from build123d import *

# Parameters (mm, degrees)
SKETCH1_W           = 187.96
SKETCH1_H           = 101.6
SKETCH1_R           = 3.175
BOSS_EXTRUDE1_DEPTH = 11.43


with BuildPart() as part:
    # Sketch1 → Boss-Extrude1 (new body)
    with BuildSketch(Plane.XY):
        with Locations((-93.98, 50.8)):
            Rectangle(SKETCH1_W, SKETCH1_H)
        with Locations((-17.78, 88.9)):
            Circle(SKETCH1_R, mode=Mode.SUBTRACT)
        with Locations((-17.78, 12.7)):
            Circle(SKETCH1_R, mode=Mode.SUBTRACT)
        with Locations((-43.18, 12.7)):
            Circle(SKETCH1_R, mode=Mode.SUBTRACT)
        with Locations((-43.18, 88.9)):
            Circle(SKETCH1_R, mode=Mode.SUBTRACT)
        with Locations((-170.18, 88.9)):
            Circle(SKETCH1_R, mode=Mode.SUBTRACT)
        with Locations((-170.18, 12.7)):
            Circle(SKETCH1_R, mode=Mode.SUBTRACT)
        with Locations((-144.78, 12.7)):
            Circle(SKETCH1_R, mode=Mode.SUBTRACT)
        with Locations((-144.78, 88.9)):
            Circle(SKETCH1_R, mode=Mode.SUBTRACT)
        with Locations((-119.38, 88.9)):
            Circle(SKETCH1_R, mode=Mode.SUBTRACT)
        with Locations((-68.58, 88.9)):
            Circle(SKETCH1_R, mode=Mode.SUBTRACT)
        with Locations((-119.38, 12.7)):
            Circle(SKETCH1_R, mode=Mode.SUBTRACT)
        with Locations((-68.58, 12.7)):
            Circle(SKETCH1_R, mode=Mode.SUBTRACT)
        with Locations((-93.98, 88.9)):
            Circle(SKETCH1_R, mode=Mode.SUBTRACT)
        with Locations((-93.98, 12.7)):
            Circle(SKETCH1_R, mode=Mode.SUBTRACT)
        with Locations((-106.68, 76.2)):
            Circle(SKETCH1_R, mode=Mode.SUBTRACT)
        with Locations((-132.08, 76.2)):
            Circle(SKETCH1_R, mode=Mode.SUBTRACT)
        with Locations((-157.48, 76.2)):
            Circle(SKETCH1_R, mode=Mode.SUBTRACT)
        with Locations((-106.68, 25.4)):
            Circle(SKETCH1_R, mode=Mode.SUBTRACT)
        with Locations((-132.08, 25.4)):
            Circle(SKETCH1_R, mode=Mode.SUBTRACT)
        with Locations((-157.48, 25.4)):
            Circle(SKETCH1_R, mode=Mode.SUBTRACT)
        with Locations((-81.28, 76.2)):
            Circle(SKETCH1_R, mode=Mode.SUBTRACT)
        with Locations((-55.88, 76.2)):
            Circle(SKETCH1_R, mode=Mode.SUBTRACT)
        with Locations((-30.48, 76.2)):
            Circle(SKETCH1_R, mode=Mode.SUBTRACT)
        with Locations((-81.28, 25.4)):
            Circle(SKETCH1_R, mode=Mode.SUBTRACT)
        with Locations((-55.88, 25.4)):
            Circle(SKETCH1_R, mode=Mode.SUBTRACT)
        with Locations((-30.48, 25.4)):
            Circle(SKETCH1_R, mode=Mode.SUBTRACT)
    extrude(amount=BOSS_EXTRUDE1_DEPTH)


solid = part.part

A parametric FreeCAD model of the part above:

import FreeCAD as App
import Part
import Sketcher
from FreeCAD import Vector
Q = App.Units.Quantity

doc = App.newDocument("Part")
params = doc.addObject("Spreadsheet::Sheet", "Params")
for row, (alias, value) in enumerate([
    ("sketch1_diameter", "0.25 in"),
    ("sketch1_height", "4 in"),
    ("sketch1_width", "7.4 in"),
    ("pad1_length", "0.45 in"),
], start=1):
    params.set(f"A{row}", alias)
    params.set(f"B{row}", "=" + value)
    params.setAlias(f"B{row}", alias)

body = doc.addObject("PartDesign::Body", "Body")

sketch1 = body.newObject("Sketcher::SketchObject", "Sketch")
sketch1.AttachmentSupport = (doc.getObject("XY_Plane"), [""])
sketch1.MapMode = "FlatFace"
sketch1.addGeometry([
    Part.LineSegment(Vector(-187.96, 101.6, 0), Vector(-187.96, 0, 0)),
    Part.LineSegment(Vector(-187.96, 0, 0), Vector(0, 0, 0)),
    Part.LineSegment(Vector(0, 0, 0), Vector(0, 101.6, 0)),
    Part.LineSegment(Vector(0, 101.6, 0), Vector(-187.96, 101.6, 0)),
    Part.Circle(Vector(-170.18, 12.7, 0), Vector(0, 0, 1), 3.175),
    Part.Circle(Vector(-144.78, 12.7, 0), Vector(0, 0, 1), 3.175),
    Part.Circle(Vector(-157.48, 25.4, 0), Vector(0, 0, 1), 3.175),
    Part.Circle(Vector(-119.38, 12.7, 0), Vector(0, 0, 1), 3.175),
    Part.Circle(Vector(-132.08, 25.4, 0), Vector(0, 0, 1), 3.175),
    Part.Circle(Vector(-106.68, 25.4, 0), Vector(0, 0, 1), 3.175),
    Part.Circle(Vector(-93.98, 12.7, 0), Vector(0, 0, 1), 3.175),
    Part.Circle(Vector(-68.58, 12.7, 0), Vector(0, 0, 1), 3.175),
    Part.Circle(Vector(-81.28, 25.4, 0), Vector(0, 0, 1), 3.175),
    Part.Circle(Vector(-55.88, 25.4, 0), Vector(0, 0, 1), 3.175),
    Part.Circle(Vector(-43.18, 12.7, 0), Vector(0, 0, 1), 3.175),
    Part.Circle(Vector(-17.78, 12.7, 0), Vector(0, 0, 1), 3.175),
    Part.Circle(Vector(-30.48, 25.4, 0), Vector(0, 0, 1), 3.175),
    Part.Circle(Vector(-157.48, 76.2, 0), Vector(0, 0, 1), 3.175),
    Part.Circle(Vector(-170.18, 88.9, 0), Vector(0, 0, 1), 3.175),
    Part.Circle(Vector(-144.78, 88.9, 0), Vector(0, 0, 1), 3.175),
    Part.Circle(Vector(-132.08, 76.2, 0), Vector(0, 0, 1), 3.175),
    Part.Circle(Vector(-106.68, 76.2, 0), Vector(0, 0, 1), 3.175),
    Part.Circle(Vector(-119.38, 88.9, 0), Vector(0, 0, 1), 3.175),
    Part.Circle(Vector(-81.28, 76.2, 0), Vector(0, 0, 1), 3.175),
    Part.Circle(Vector(-55.88, 76.2, 0), Vector(0, 0, 1), 3.175),
    Part.Circle(Vector(-93.98, 88.9, 0), Vector(0, 0, 1), 3.175),
    Part.Circle(Vector(-68.58, 88.9, 0), Vector(0, 0, 1), 3.175),
    Part.Circle(Vector(-30.48, 76.2, 0), Vector(0, 0, 1), 3.175),
    Part.Circle(Vector(-43.18, 88.9, 0), Vector(0, 0, 1), 3.175),
    Part.Circle(Vector(-17.78, 88.9, 0), Vector(0, 0, 1), 3.175),
], False)
sketch1.addConstraint([
    Sketcher.Constraint("Coincident", 0, 2, 1, 1),
    Sketcher.Constraint("Coincident", 1, 2, 2, 1),
    Sketcher.Constraint("Coincident", 2, 2, 3, 1),
    Sketcher.Constraint("Coincident", 3, 2, 0, 1),
    Sketcher.Constraint("Vertical", 0),
    Sketcher.Constraint("Horizontal", 1),
    Sketcher.Constraint("Vertical", 2),
    Sketcher.Constraint("Horizontal", 3),
    Sketcher.Constraint("Coincident", 1, 2, -1, 1),
    Sketcher.Constraint("Equal", 4, 5),
    Sketcher.Constraint("Equal", 5, 6),
    Sketcher.Constraint("Equal", 6, 7),
    Sketcher.Constraint("Equal", 7, 8),
    Sketcher.Constraint("Equal", 8, 9),
    Sketcher.Constraint("Equal", 9, 10),
    Sketcher.Constraint("Equal", 10, 11),
    Sketcher.Constraint("Equal", 11, 12),
    Sketcher.Constraint("Equal", 12, 13),
    Sketcher.Constraint("Equal", 13, 14),
    Sketcher.Constraint("Equal", 14, 15),
    Sketcher.Constraint("Equal", 15, 16),
    Sketcher.Constraint("Equal", 16, 17),
    Sketcher.Constraint("Equal", 17, 18),
    Sketcher.Constraint("Equal", 18, 19),
    Sketcher.Constraint("Equal", 19, 20),
    Sketcher.Constraint("Equal", 20, 21),
    Sketcher.Constraint("Equal", 21, 22),
    Sketcher.Constraint("Equal", 22, 23),
    Sketcher.Constraint("Equal", 23, 24),
    Sketcher.Constraint("Equal", 24, 25),
    Sketcher.Constraint("Equal", 25, 26),
    Sketcher.Constraint("Equal", 26, 27),
    Sketcher.Constraint("Equal", 27, 28),
    Sketcher.Constraint("Equal", 28, 29),
    Sketcher.Constraint("Horizontal", 4, 3, 5, 3),
    Sketcher.Constraint("Horizontal", 5, 3, 7, 3),
    Sketcher.Constraint("Horizontal", 6, 3, 8, 3),
    Sketcher.Constraint("Horizontal", 8, 3, 9, 3),
    Sketcher.Constraint("Horizontal", 7, 3, 10, 3),
    Sketcher.Constraint("Horizontal", 10, 3, 11, 3),
    Sketcher.Constraint("Horizontal", 9, 3, 12, 3),
    Sketcher.Constraint("Horizontal", 12, 3, 13, 3),
    Sketcher.Constraint("Horizontal", 11, 3, 14, 3),
    Sketcher.Constraint("Horizontal", 14, 3, 15, 3),
    Sketcher.Constraint("Horizontal", 13, 3, 16, 3),
    Sketcher.Constraint("Horizontal", 18, 3, 19, 3),
    Sketcher.Constraint("Horizontal", 17, 3, 20, 3),
    Sketcher.Constraint("Horizontal", 20, 3, 21, 3),
    Sketcher.Constraint("Horizontal", 19, 3, 22, 3),
    Sketcher.Constraint("Horizontal", 21, 3, 23, 3),
    Sketcher.Constraint("Horizontal", 23, 3, 24, 3),
    Sketcher.Constraint("Horizontal", 22, 3, 25, 3),
    Sketcher.Constraint("Horizontal", 25, 3, 26, 3),
    Sketcher.Constraint("Horizontal", 24, 3, 27, 3),
    Sketcher.Constraint("Horizontal", 26, 3, 28, 3),
    Sketcher.Constraint("Horizontal", 28, 3, 29, 3),
    Sketcher.Constraint("Vertical", 6, 3, 17, 3),
    Sketcher.Constraint("Vertical", 4, 3, 18, 3),
    Sketcher.Constraint("Vertical", 5, 3, 19, 3),
    Sketcher.Constraint("Vertical", 8, 3, 20, 3),
    Sketcher.Constraint("Vertical", 9, 3, 21, 3),
    Sketcher.Constraint("Vertical", 7, 3, 22, 3),
    Sketcher.Constraint("Vertical", 12, 3, 23, 3),
    Sketcher.Constraint("Vertical", 13, 3, 24, 3),
    Sketcher.Constraint("Vertical", 10, 3, 25, 3),
    Sketcher.Constraint("Vertical", 11, 3, 26, 3),
    Sketcher.Constraint("Vertical", 16, 3, 27, 3),
    Sketcher.Constraint("Vertical", 14, 3, 28, 3),
    Sketcher.Constraint("Vertical", 15, 3, 29, 3),
    Sketcher.Constraint("Diameter", 4, Q("0.25 in")),
    Sketcher.Constraint("DistanceY", 0, 2, 0, 1, Q("4 in")),
    Sketcher.Constraint("DistanceX", 1, 1, 1, 2, Q("7.4 in")),
    Sketcher.Constraint("DistanceY", -1, 1, 6, 3, Q("1 in")),
    Sketcher.Constraint("DistanceY", -1, 1, 17, 3, Q("3 in")),
    Sketcher.Constraint("DistanceX", 4, 3, 5, 3, Q("1 in")),
    Sketcher.Constraint("DistanceX", 5, 3, 7, 3, Q("1 in")),
    Sketcher.Constraint("DistanceX", 6, 3, 8, 3, Q("1 in")),
    Sketcher.Constraint("DistanceX", 8, 3, 9, 3, Q("1 in")),
    Sketcher.Constraint("DistanceX", 7, 3, 10, 3, Q("1 in")),
    Sketcher.Constraint("DistanceX", 10, 3, 11, 3, Q("1 in")),
    Sketcher.Constraint("DistanceX", 9, 3, 12, 3, Q("1 in")),
    Sketcher.Constraint("DistanceX", 12, 3, 13, 3, Q("1 in")),
    Sketcher.Constraint("DistanceX", 11, 3, 14, 3, Q("1 in")),
    Sketcher.Constraint("DistanceX", 14, 3, 15, 3, Q("1 in")),
    Sketcher.Constraint("DistanceX", 13, 3, 16, 3, Q("1 in")),
    Sketcher.Constraint("DistanceY", 4, 3, 18, 3, Q("3 in")),
    Sketcher.Constraint("DistanceX", 4, 3, -1, 1, Q("6.7 in")),
    Sketcher.Constraint("DistanceY", -1, 1, 4, 3, Q("0.5 in")),
    Sketcher.Constraint("DistanceX", 6, 3, -1, 1, Q("6.2 in")),
])
sketch1.setExpression("Constraints[69]", "Params.sketch1_diameter")
sketch1.setExpression("Constraints[70]", "Params.sketch1_height")
sketch1.setExpression("Constraints[71]", "Params.sketch1_width")
pad1 = body.newObject("PartDesign::Pad", "Pad")
pad1.Profile = sketch1
pad1.setExpression("Length", "Params.pad1_length")

doc.recompute()
